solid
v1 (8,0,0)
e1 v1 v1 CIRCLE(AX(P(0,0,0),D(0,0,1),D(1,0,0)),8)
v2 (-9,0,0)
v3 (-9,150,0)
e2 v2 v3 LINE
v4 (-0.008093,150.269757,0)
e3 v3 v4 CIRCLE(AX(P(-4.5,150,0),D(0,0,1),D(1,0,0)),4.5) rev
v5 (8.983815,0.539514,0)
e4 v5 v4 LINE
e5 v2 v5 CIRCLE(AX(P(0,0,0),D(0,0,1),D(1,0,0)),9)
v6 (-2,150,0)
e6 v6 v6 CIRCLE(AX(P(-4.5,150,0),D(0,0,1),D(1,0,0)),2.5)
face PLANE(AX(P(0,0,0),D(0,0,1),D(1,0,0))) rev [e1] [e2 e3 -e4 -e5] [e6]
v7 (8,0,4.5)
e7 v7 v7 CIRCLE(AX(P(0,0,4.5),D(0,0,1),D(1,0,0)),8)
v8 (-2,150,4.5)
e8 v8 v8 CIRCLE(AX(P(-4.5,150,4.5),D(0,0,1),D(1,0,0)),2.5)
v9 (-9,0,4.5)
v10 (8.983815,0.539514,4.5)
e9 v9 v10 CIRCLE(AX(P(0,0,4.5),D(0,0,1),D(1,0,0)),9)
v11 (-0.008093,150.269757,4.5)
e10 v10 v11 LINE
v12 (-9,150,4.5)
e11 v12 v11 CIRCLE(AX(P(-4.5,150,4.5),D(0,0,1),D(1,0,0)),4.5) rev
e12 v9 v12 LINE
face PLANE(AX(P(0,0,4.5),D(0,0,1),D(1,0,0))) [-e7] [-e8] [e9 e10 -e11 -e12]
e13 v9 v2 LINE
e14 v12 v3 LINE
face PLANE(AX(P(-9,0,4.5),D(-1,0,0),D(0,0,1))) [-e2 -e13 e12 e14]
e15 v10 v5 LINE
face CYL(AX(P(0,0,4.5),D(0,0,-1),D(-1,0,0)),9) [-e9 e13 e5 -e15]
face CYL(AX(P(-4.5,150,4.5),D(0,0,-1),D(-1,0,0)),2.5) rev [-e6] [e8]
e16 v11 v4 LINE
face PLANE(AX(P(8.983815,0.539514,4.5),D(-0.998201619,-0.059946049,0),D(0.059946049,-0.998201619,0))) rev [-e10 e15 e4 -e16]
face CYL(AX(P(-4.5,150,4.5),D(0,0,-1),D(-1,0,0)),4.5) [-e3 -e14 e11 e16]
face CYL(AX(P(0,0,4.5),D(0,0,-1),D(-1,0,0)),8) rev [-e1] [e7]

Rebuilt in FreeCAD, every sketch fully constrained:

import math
import FreeCAD as App
import Part
import Sketcher
Q = App.Units.Quantity

doc = App.newDocument("Part")
body = doc.addObject("PartDesign::Body", "Body")

# Sketch on XY plane
sketch1 = body.newObject("Sketcher::SketchObject", "Sketch")
sketch1.AttachmentSupport = (doc.getObject("XY_Plane"), [""])
sketch1.MapMode = "FlatFace"
sketch1.addGeometry([
    Part.LineSegment(App.Vector(-9, 150, 0), App.Vector(-9, 0, 0)),  # 0
    Part.ArcOfCircle(Part.Circle(App.Vector(0, 0, 0), App.Vector(0, 0, 1), 9), math.radians(180), math.radians(363.436716)),  # 1
    Part.LineSegment(App.Vector(8.983815, 0.539514, 0), App.Vector(-0.008093, 150.269757, 0)),  # 2
    Part.ArcOfCircle(Part.Circle(App.Vector(-4.5, 150, 0), App.Vector(0, 0, 1), 4.5), math.radians(3.436716), math.radians(180)),  # 3
    Part.Circle(App.Vector(0, 0, 0), App.Vector(0, 0, 1), 8),  # 4
    Part.Circle(App.Vector(-4.5, 150, 0), App.Vector(0, 0, 1), 2.5),  # 5
], False)
sketch1.addConstraint([
    Sketcher.Constraint("Tangent", 0, 2, 1, 1),
    Sketcher.Constraint("Tangent", 1, 2, 2, 1),
    Sketcher.Constraint("Tangent", 2, 2, 3, 1),
    Sketcher.Constraint("Tangent", 3, 2, 0, 1),
    Sketcher.Constraint("Vertical", 0),
    Sketcher.Constraint("Coincident", 1, 3, -1, 1),
    Sketcher.Constraint("Coincident", 4, 3, -1, 1),
    Sketcher.Constraint("Coincident", 5, 3, 3, 3),
    Sketcher.Constraint("Diameter", 4, Q("16 mm")),
    Sketcher.Constraint("Diameter", 5, Q("5 mm")),
    Sketcher.Constraint("Radius", 1, Q("9 mm")),
    Sketcher.Constraint("Radius", 3, Q("4.5 mm")),
    Sketcher.Constraint("DistanceY", 0, 2, 0, 1, Q("150 mm")),
])
pad1 = body.newObject("PartDesign::Pad", "Pad")
pad1.Profile = sketch1
pad1.Length = 4.5

doc.recompute()
